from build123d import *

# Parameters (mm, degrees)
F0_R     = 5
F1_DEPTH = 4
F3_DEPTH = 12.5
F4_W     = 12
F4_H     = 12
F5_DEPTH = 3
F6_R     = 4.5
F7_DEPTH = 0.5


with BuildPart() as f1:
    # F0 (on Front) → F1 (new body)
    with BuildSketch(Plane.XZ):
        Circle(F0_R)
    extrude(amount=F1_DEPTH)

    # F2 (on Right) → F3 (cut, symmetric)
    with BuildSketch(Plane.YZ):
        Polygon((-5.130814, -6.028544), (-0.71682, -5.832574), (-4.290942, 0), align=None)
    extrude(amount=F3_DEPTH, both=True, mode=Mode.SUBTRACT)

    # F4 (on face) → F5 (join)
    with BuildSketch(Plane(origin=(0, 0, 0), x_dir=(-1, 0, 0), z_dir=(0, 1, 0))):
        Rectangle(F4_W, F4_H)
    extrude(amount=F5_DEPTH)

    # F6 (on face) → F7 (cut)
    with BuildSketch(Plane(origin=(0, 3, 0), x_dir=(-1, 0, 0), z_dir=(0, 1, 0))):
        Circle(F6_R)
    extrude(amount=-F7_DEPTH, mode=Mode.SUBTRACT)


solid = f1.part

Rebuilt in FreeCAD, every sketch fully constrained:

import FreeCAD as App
import Part
import Sketcher

V = App.Vector

doc = App.newDocument("Part")
body = doc.addObject("PartDesign::Body", "Body")

sketch1 = doc.addObject("Sketcher::SketchObject", "Sketch")
body.addObject(sketch1)
sketch1.AttachmentSupport = (doc.XZ_Plane, [""])
sketch1.MapMode = "FlatFace"
sketch1.addGeometry(Part.Circle(V(0, 0, 0), V(0, 0, 1), 5), False)
sketch1.addConstraint(Sketcher.Constraint("Coincident", 0, 3, -1, 1))
sketch1.addConstraint(Sketcher.Constraint("Diameter", 0, 10.0))
pad1 = doc.addObject("PartDesign::Pad", "Pad")
body.addObject(pad1)
pad1.Profile = sketch1
pad1.Length = 4

sketch2 = doc.addObject("Sketcher::SketchObject", "Sketch001")
body.addObject(sketch2)
sketch2.AttachmentSupport = (doc.YZ_Plane, [""])
sketch2.MapMode = "FlatFace"
sketch2.addGeometry(Part.LineSegment(V(-5.1, -6, 0), V(-0.7, -5.8, 0)), False)
sketch2.addGeometry(Part.LineSegment(V(-0.7, -5.8, 0), V(-4.3, 0, 0)), False)
sketch2.addGeometry(Part.LineSegment(V(-4.3, 0, 0), V(-5.1, -6, 0)), False)
sketch2.addConstraint(Sketcher.Constraint("Coincident", 0, 2, 1, 1))
sketch2.addConstraint(Sketcher.Constraint("Coincident", 1, 2, 2, 1))
sketch2.addConstraint(Sketcher.Constraint("Coincident", 2, 2, 0, 1))
sketch2.addConstraint(Sketcher.Constraint("PointOnObject", 1, 2, -1))
sketch2.addConstraint(Sketcher.Constraint("Distance", 1, 6.84056))
sketch2.addConstraint(Sketcher.Constraint("DistanceX", 0, 2, -1, 1, 0.71682))
sketch2.addConstraint(Sketcher.Constraint("DistanceX", 1, 2, 0, 2, 3.574122))
sketch2.addConstraint(Sketcher.Constraint("DistanceY", 2, 2, 0, 2, 0.19597))
sketch2.addConstraint(Sketcher.Constraint("DistanceX", 2, 2, 1, 2, 0.839872))
pocket1 = doc.addObject("PartDesign::Pocket", "Pocket")
body.addObject(pocket1)
pocket1.Profile = sketch2
pocket1.Length = 25
pocket1.Midplane = True

sketch3 = doc.addObject("Sketcher::SketchObject", "Sketch002")
body.addObject(sketch3)
sketch3.AttachmentSupport = (doc.XZ_Plane, [""])
sketch3.MapMode = "FlatFace"
sketch3.addGeometry(Part.LineSegment(V(6, 6, 0), V(6, -6, 0)), False)
sketch3.addGeometry(Part.LineSegment(V(6, -6, 0), V(-6, -6, 0)), False)
sketch3.addGeometry(Part.LineSegment(V(-6, -6, 0), V(-6, 6, 0)), False)
sketch3.addGeometry(Part.LineSegment(V(-6, 6, 0), V(6, 6, 0)), False)
sketch3.addConstraint(Sketcher.Constraint("Coincident", 0, 2, 1, 1))
sketch3.addConstraint(Sketcher.Constraint("Coincident", 1, 2, 2, 1))
sketch3.addConstraint(Sketcher.Constraint("Coincident", 2, 2, 3, 1))
sketch3.addConstraint(Sketcher.Constraint("Coincident", 3, 2, 0, 1))
sketch3.addConstraint(Sketcher.Constraint("Vertical", 0))
sketch3.addConstraint(Sketcher.Constraint("Horizontal", 1))
sketch3.addConstraint(Sketcher.Constraint("Vertical", 2))
sketch3.addConstraint(Sketcher.Constraint("Horizontal", 3))
sketch3.addConstraint(Sketcher.Constraint("Symmetric", 0, 2, 2, 2, -1, 1))
sketch3.addConstraint(Sketcher.Constraint("Equal", 3, 0))
sketch3.addConstraint(Sketcher.Constraint("DistanceX", 1, 2, 1, 1, 12.0))
pad2 = doc.addObject("PartDesign::Pad", "Pad001")
body.addObject(pad2)
pad2.Profile = sketch3
pad2.Length = 3
pad2.Reversed = True

sketch4 = doc.addObject("Sketcher::SketchObject", "Sketch003")
body.addObject(sketch4)
sketch4.AttachmentSupport = (doc.XZ_Plane, [""])
sketch4.MapMode = "FlatFace"
sketch4.AttachmentOffset = App.Placement(V(0, 0, -3), App.Rotation())
sketch4.addGeometry(Part.Circle(V(0, 0, 0), V(0, 0, 1), 4.5), False)
sketch4.addConstraint(Sketcher.Constraint("Coincident", 0, 3, -1, 1))
sketch4.addConstraint(Sketcher.Constraint("Diameter", 0, 9.0))
pocket2 = doc.addObject("PartDesign::Pocket", "Pocket001")
body.addObject(pocket2)
pocket2.Profile = sketch4
pocket2.Length = 0.5
pocket2.Reversed = True

doc.recompute()
